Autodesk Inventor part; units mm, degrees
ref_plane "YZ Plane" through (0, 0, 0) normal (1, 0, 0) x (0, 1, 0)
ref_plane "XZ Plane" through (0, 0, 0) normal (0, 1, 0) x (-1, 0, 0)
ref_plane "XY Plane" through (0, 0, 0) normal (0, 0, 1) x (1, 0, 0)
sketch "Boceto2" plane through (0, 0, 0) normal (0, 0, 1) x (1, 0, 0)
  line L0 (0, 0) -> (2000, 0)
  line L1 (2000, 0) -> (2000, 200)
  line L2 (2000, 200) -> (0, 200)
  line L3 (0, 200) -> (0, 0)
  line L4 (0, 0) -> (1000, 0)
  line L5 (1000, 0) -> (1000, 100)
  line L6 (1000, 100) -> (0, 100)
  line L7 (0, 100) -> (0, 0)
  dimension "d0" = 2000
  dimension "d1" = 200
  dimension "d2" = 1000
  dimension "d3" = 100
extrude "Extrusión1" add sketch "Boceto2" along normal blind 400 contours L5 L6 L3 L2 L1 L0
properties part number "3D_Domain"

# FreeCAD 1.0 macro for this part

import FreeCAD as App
import Part
import Sketcher

V = App.Vector

doc = App.newDocument("Part")
body = doc.addObject("PartDesign::Body", "Body")

sketch1 = body.newObject("Sketcher::SketchObject", "Sketch")
sketch1.AttachmentSupport = (doc.getObject("XY_Plane"), [""])
sketch1.MapMode = "FlatFace"
sketch1.addGeometry([
    Part.LineSegment(V(1000, 100, 0), V(1000, 0, 0)),
    Part.LineSegment(V(1000, 0, 0), V(2000, 0, 0)),
    Part.LineSegment(V(2000, 0, 0), V(2000, 200, 0)),
    Part.LineSegment(V(2000, 200, 0), V(0, 200, 0)),
    Part.LineSegment(V(0, 200, 0), V(0, 100, 0)),
    Part.LineSegment(V(0, 100, 0), V(1000, 100, 0)),
], False)
sketch1.addConstraint([
    Sketcher.Constraint("Coincident", 0, 2, 1, 1),
    Sketcher.Constraint("Coincident", 1, 2, 2, 1),
    Sketcher.Constraint("Coincident", 2, 2, 3, 1),
    Sketcher.Constraint("Coincident", 3, 2, 4, 1),
    Sketcher.Constraint("Coincident", 4, 2, 5, 1),
    Sketcher.Constraint("Coincident", 5, 2, 0, 1),
    Sketcher.Constraint("Vertical", 0),
    Sketcher.Constraint("Horizontal", 1),
    Sketcher.Constraint("Vertical", 2),
    Sketcher.Constraint("Horizontal", 3),
    Sketcher.Constraint("Vertical", 4),
    Sketcher.Constraint("Horizontal", 5),
    Sketcher.Constraint("PointOnObject", 0, 2, -1),
    Sketcher.Constraint("PointOnObject", 3, 2, -2),
    Sketcher.Constraint("Equal", 1, 5),
    Sketcher.Constraint("Equal", 0, 4),
    Sketcher.Constraint("DistanceX", 1, 1, 1, 2, 1000.0),
    Sketcher.Constraint("DistanceY", 0, 2, 0, 1, 100.0),
])
pad1 = body.newObject("PartDesign::Pad", "Pad")
pad1.Profile = sketch1
pad1.Length = 400

doc.recompute()
